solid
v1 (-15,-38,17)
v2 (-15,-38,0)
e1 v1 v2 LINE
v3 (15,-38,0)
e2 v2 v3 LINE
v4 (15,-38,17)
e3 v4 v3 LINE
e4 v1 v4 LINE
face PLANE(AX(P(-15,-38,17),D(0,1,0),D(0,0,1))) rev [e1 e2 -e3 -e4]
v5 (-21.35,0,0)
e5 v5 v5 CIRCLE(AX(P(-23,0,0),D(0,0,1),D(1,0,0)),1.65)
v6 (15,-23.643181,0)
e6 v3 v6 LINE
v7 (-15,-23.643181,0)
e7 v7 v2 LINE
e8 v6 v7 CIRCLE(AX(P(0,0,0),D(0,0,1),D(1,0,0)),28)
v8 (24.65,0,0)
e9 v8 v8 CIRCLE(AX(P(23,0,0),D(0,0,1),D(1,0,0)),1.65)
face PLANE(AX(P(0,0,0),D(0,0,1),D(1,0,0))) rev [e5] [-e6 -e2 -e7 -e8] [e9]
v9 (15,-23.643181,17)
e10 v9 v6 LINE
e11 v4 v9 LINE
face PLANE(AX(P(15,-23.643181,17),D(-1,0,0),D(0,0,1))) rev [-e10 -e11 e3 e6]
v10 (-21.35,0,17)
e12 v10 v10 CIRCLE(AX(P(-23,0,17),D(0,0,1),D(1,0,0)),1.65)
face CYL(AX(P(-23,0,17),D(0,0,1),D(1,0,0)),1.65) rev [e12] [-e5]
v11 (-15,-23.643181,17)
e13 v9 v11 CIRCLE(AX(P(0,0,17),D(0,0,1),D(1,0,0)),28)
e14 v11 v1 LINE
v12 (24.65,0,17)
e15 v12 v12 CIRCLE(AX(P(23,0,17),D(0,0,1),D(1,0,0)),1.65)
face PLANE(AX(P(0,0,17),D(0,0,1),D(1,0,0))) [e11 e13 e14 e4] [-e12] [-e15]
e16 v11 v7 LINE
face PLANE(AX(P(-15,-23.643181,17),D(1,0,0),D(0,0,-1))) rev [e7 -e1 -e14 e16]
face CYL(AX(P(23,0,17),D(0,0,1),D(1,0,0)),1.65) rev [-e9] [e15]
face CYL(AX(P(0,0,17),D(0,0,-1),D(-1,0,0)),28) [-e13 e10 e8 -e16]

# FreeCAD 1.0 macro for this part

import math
import FreeCAD as App
import Part
import Sketcher

V = App.Vector
Q = App.Units.Quantity

doc = App.newDocument("Part")
params = doc.addObject("Spreadsheet::Sheet", "Params")
for row, (alias, value) in enumerate([
    ("sketch1_radius", "28 mm"),
    ("sketch1_width", "30 mm"),
    ("pad1_length", "17 mm"),
    ("sketch2_diameter", "3.3 mm"),
    ("hole_diameter", "3.3 mm"),
    ("hole_depth", "25 mm"),
], start=1):
    params.set(f"A{row}", alias)
    params.set(f"B{row}", "=" + value)
    params.setAlias(f"B{row}", alias)

body = doc.addObject("PartDesign::Body", "Body")

# Sketch on XY plane
sketch1 = body.newObject("Sketcher::SketchObject", "Sketch")
sketch1.AttachmentSupport = (doc.getObject("XY_Plane"), [""])
sketch1.MapMode = "FlatFace"
sketch1.addGeometry([
    Part.LineSegment(V(-15, -24, 0), V(-15, -38, 0)),
    Part.LineSegment(V(-15, -38, 0), V(15, -38, 0)),
    Part.LineSegment(V(15, -38, 0), V(15, -24, 0)),
    Part.ArcOfCircle(Part.Circle(V(0, 0, 0), V(0, 0, 1), 28), math.radians(-58), math.radians(238)),
], False)
sketch1.addConstraint([
    Sketcher.Constraint("Coincident", 0, 2, 1, 1),
    Sketcher.Constraint("Coincident", 1, 2, 2, 1),
    Sketcher.Constraint("Coincident", 2, 2, 3, 1),
    Sketcher.Constraint("Coincident", 3, 2, 0, 1),
    Sketcher.Constraint("Vertical", 0),
    Sketcher.Constraint("Horizontal", 1),
    Sketcher.Constraint("Vertical", 2),
    Sketcher.Constraint("Coincident", 3, 3, -1, 1),
    Sketcher.Constraint("Horizontal", 2, 2, 3, 2),
    Sketcher.Constraint("Radius", 3, Q("28 mm")),
    Sketcher.Constraint("DistanceX", 1, 1, 1, 2, Q("30 mm")),
    Sketcher.Constraint("DistanceY", 0, 2, -1, 1, Q("38 mm")),
])
sketch1.setExpression("Constraints[9]", "Params.sketch1_radius")
sketch1.setExpression("Constraints[10]", "Params.sketch1_width")
pad1 = body.newObject("PartDesign::Pad", "Pad")
pad1.Profile = sketch1
pad1.setExpression("Length", "Params.pad1_length")

# Sketch on XY plane
sketch2 = body.newObject("Sketcher::SketchObject", "Sketch001")
sketch2.AttachmentSupport = (doc.getObject("XY_Plane"), [""])
sketch2.MapMode = "FlatFace"
sketch2.AttachmentOffset = App.Placement(V(0, 0, 17), App.Rotation())
sketch2.addGeometry([
    Part.Circle(V(-23, 0, 0), V(0, 0, 1), 1.6),
    Part.Circle(V(23, 0, 0), V(0, 0, 1), 1.6),
], False)
sketch2.addConstraint([
    Sketcher.Constraint("Equal", 0, 1),
    Sketcher.Constraint("Symmetric", 0, 3, 1, 3, -1, 1),
    Sketcher.Constraint("PointOnObject", 0, 3, -1),
    Sketcher.Constraint("Diameter", 0, Q("3.3 mm")),
    Sketcher.Constraint("DistanceX", 0, 3, -1, 1, Q("23 mm")),
])
sketch2.setExpression("Constraints[3]", "Params.sketch2_diameter")
doc.recompute()
hole = body.newObject("PartDesign::Hole", "Hole")
hole.Profile = sketch2
hole.ThreadType = "None"
hole.setExpression("Diameter", "Params.hole_diameter")
hole.DepthType = "Dimension"
hole.setExpression("Depth", "Params.hole_depth")
hole.DrillPoint = "Angled"
hole.DrillPointAngle = 118

doc.recompute()
